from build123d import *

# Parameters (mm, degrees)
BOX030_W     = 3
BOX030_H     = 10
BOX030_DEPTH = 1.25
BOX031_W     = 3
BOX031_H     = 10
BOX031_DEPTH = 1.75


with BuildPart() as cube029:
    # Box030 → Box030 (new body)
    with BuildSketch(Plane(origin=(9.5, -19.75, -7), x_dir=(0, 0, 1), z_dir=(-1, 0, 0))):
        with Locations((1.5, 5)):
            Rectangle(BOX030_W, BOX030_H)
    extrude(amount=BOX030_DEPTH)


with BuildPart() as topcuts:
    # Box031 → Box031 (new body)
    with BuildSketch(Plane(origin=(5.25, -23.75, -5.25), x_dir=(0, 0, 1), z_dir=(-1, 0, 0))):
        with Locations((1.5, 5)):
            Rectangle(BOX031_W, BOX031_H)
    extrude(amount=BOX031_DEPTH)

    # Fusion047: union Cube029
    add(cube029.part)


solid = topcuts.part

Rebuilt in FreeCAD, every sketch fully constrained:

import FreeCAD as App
import Part
import Sketcher


def add_polygon(sketch, points):
    """Adds a closed chain of lines whose ends are joined by coincident constraints."""
    first, n = sketch.GeometryCount, len(points)
    for a, b in zip(points, points[1:] + points[:1]):
        sketch.addGeometry(Part.LineSegment(App.Vector(*a, 0), App.Vector(*b, 0)), False)
    for i in range(n):
        sketch.addConstraint(Sketcher.Constraint("Coincident", first + i, 2, first + (i + 1) % n, 1))

doc = App.newDocument("Part")
body = doc.addObject("PartDesign::Body", "Body")

sketch1 = body.newObject("Sketcher::SketchObject", "Sketch")
sketch1.AttachmentSupport = (doc.getObject("YZ_Plane"), [""])
sketch1.MapMode = "FlatFace"
sketch1.AttachmentOffset = App.Placement(App.Vector(0, 0, 9.5), App.Rotation())
add_polygon(sketch1, [(-9.8, -7), (-19.8, -7), (-19.8, -4), (-9.8, -4)])
sketch1.addConstraint([
    Sketcher.Constraint("Horizontal", 0),
    Sketcher.Constraint("Vertical", 1),
    Sketcher.Constraint("Horizontal", 2),
    Sketcher.Constraint("Vertical", 3),
    Sketcher.Constraint("DistanceX", 0, 2, 0, 1, 10.0),
    Sketcher.Constraint("DistanceY", 1, 1, 1, 2, 3.0),
    Sketcher.Constraint("DistanceY", 0, 2, -1, 1, 7.0),
    Sketcher.Constraint("DistanceX", 0, 2, -1, 1, 19.75),
])
pad1 = body.newObject("PartDesign::Pad", "Pad")
pad1.Profile = sketch1
pad1.Length = 1.25
pad1.Reversed = True
body2 = doc.addObject("PartDesign::Body", "Body001")
body2.AllowCompound = True

sketch2 = body2.newObject("Sketcher::SketchObject", "Sketch001")
sketch2.AttachmentSupport = (doc.getObject("YZ_Plane001"), [""])
sketch2.MapMode = "FlatFace"
sketch2.AttachmentOffset = App.Placement(App.Vector(0, 0, 5.25), App.Rotation())
add_polygon(sketch2, [(-13.8, -5.2), (-23.8, -5.2), (-23.8, -2.2), (-13.8, -2.2)])
sketch2.addConstraint([
    Sketcher.Constraint("Horizontal", 0),
    Sketcher.Constraint("Vertical", 1),
    Sketcher.Constraint("Horizontal", 2),
    Sketcher.Constraint("Vertical", 3),
    Sketcher.Constraint("DistanceX", 0, 2, 0, 1, 10.0),
    Sketcher.Constraint("DistanceY", 1, 1, 1, 2, 3.0),
    Sketcher.Constraint("DistanceX", 0, 2, -1, 1, 23.75),
    Sketcher.Constraint("DistanceY", 0, 2, -1, 1, 5.25),
])
pad2 = body2.newObject("PartDesign::Pad", "Pad001")
pad2.Profile = sketch2
pad2.Length = 1.75
pad2.Reversed = True
doc.recompute()

boolean = body2.newObject("PartDesign::Boolean", "Boolean")
boolean.Type = "Fuse"
boolean.addObjects([body])

doc.recompute()
